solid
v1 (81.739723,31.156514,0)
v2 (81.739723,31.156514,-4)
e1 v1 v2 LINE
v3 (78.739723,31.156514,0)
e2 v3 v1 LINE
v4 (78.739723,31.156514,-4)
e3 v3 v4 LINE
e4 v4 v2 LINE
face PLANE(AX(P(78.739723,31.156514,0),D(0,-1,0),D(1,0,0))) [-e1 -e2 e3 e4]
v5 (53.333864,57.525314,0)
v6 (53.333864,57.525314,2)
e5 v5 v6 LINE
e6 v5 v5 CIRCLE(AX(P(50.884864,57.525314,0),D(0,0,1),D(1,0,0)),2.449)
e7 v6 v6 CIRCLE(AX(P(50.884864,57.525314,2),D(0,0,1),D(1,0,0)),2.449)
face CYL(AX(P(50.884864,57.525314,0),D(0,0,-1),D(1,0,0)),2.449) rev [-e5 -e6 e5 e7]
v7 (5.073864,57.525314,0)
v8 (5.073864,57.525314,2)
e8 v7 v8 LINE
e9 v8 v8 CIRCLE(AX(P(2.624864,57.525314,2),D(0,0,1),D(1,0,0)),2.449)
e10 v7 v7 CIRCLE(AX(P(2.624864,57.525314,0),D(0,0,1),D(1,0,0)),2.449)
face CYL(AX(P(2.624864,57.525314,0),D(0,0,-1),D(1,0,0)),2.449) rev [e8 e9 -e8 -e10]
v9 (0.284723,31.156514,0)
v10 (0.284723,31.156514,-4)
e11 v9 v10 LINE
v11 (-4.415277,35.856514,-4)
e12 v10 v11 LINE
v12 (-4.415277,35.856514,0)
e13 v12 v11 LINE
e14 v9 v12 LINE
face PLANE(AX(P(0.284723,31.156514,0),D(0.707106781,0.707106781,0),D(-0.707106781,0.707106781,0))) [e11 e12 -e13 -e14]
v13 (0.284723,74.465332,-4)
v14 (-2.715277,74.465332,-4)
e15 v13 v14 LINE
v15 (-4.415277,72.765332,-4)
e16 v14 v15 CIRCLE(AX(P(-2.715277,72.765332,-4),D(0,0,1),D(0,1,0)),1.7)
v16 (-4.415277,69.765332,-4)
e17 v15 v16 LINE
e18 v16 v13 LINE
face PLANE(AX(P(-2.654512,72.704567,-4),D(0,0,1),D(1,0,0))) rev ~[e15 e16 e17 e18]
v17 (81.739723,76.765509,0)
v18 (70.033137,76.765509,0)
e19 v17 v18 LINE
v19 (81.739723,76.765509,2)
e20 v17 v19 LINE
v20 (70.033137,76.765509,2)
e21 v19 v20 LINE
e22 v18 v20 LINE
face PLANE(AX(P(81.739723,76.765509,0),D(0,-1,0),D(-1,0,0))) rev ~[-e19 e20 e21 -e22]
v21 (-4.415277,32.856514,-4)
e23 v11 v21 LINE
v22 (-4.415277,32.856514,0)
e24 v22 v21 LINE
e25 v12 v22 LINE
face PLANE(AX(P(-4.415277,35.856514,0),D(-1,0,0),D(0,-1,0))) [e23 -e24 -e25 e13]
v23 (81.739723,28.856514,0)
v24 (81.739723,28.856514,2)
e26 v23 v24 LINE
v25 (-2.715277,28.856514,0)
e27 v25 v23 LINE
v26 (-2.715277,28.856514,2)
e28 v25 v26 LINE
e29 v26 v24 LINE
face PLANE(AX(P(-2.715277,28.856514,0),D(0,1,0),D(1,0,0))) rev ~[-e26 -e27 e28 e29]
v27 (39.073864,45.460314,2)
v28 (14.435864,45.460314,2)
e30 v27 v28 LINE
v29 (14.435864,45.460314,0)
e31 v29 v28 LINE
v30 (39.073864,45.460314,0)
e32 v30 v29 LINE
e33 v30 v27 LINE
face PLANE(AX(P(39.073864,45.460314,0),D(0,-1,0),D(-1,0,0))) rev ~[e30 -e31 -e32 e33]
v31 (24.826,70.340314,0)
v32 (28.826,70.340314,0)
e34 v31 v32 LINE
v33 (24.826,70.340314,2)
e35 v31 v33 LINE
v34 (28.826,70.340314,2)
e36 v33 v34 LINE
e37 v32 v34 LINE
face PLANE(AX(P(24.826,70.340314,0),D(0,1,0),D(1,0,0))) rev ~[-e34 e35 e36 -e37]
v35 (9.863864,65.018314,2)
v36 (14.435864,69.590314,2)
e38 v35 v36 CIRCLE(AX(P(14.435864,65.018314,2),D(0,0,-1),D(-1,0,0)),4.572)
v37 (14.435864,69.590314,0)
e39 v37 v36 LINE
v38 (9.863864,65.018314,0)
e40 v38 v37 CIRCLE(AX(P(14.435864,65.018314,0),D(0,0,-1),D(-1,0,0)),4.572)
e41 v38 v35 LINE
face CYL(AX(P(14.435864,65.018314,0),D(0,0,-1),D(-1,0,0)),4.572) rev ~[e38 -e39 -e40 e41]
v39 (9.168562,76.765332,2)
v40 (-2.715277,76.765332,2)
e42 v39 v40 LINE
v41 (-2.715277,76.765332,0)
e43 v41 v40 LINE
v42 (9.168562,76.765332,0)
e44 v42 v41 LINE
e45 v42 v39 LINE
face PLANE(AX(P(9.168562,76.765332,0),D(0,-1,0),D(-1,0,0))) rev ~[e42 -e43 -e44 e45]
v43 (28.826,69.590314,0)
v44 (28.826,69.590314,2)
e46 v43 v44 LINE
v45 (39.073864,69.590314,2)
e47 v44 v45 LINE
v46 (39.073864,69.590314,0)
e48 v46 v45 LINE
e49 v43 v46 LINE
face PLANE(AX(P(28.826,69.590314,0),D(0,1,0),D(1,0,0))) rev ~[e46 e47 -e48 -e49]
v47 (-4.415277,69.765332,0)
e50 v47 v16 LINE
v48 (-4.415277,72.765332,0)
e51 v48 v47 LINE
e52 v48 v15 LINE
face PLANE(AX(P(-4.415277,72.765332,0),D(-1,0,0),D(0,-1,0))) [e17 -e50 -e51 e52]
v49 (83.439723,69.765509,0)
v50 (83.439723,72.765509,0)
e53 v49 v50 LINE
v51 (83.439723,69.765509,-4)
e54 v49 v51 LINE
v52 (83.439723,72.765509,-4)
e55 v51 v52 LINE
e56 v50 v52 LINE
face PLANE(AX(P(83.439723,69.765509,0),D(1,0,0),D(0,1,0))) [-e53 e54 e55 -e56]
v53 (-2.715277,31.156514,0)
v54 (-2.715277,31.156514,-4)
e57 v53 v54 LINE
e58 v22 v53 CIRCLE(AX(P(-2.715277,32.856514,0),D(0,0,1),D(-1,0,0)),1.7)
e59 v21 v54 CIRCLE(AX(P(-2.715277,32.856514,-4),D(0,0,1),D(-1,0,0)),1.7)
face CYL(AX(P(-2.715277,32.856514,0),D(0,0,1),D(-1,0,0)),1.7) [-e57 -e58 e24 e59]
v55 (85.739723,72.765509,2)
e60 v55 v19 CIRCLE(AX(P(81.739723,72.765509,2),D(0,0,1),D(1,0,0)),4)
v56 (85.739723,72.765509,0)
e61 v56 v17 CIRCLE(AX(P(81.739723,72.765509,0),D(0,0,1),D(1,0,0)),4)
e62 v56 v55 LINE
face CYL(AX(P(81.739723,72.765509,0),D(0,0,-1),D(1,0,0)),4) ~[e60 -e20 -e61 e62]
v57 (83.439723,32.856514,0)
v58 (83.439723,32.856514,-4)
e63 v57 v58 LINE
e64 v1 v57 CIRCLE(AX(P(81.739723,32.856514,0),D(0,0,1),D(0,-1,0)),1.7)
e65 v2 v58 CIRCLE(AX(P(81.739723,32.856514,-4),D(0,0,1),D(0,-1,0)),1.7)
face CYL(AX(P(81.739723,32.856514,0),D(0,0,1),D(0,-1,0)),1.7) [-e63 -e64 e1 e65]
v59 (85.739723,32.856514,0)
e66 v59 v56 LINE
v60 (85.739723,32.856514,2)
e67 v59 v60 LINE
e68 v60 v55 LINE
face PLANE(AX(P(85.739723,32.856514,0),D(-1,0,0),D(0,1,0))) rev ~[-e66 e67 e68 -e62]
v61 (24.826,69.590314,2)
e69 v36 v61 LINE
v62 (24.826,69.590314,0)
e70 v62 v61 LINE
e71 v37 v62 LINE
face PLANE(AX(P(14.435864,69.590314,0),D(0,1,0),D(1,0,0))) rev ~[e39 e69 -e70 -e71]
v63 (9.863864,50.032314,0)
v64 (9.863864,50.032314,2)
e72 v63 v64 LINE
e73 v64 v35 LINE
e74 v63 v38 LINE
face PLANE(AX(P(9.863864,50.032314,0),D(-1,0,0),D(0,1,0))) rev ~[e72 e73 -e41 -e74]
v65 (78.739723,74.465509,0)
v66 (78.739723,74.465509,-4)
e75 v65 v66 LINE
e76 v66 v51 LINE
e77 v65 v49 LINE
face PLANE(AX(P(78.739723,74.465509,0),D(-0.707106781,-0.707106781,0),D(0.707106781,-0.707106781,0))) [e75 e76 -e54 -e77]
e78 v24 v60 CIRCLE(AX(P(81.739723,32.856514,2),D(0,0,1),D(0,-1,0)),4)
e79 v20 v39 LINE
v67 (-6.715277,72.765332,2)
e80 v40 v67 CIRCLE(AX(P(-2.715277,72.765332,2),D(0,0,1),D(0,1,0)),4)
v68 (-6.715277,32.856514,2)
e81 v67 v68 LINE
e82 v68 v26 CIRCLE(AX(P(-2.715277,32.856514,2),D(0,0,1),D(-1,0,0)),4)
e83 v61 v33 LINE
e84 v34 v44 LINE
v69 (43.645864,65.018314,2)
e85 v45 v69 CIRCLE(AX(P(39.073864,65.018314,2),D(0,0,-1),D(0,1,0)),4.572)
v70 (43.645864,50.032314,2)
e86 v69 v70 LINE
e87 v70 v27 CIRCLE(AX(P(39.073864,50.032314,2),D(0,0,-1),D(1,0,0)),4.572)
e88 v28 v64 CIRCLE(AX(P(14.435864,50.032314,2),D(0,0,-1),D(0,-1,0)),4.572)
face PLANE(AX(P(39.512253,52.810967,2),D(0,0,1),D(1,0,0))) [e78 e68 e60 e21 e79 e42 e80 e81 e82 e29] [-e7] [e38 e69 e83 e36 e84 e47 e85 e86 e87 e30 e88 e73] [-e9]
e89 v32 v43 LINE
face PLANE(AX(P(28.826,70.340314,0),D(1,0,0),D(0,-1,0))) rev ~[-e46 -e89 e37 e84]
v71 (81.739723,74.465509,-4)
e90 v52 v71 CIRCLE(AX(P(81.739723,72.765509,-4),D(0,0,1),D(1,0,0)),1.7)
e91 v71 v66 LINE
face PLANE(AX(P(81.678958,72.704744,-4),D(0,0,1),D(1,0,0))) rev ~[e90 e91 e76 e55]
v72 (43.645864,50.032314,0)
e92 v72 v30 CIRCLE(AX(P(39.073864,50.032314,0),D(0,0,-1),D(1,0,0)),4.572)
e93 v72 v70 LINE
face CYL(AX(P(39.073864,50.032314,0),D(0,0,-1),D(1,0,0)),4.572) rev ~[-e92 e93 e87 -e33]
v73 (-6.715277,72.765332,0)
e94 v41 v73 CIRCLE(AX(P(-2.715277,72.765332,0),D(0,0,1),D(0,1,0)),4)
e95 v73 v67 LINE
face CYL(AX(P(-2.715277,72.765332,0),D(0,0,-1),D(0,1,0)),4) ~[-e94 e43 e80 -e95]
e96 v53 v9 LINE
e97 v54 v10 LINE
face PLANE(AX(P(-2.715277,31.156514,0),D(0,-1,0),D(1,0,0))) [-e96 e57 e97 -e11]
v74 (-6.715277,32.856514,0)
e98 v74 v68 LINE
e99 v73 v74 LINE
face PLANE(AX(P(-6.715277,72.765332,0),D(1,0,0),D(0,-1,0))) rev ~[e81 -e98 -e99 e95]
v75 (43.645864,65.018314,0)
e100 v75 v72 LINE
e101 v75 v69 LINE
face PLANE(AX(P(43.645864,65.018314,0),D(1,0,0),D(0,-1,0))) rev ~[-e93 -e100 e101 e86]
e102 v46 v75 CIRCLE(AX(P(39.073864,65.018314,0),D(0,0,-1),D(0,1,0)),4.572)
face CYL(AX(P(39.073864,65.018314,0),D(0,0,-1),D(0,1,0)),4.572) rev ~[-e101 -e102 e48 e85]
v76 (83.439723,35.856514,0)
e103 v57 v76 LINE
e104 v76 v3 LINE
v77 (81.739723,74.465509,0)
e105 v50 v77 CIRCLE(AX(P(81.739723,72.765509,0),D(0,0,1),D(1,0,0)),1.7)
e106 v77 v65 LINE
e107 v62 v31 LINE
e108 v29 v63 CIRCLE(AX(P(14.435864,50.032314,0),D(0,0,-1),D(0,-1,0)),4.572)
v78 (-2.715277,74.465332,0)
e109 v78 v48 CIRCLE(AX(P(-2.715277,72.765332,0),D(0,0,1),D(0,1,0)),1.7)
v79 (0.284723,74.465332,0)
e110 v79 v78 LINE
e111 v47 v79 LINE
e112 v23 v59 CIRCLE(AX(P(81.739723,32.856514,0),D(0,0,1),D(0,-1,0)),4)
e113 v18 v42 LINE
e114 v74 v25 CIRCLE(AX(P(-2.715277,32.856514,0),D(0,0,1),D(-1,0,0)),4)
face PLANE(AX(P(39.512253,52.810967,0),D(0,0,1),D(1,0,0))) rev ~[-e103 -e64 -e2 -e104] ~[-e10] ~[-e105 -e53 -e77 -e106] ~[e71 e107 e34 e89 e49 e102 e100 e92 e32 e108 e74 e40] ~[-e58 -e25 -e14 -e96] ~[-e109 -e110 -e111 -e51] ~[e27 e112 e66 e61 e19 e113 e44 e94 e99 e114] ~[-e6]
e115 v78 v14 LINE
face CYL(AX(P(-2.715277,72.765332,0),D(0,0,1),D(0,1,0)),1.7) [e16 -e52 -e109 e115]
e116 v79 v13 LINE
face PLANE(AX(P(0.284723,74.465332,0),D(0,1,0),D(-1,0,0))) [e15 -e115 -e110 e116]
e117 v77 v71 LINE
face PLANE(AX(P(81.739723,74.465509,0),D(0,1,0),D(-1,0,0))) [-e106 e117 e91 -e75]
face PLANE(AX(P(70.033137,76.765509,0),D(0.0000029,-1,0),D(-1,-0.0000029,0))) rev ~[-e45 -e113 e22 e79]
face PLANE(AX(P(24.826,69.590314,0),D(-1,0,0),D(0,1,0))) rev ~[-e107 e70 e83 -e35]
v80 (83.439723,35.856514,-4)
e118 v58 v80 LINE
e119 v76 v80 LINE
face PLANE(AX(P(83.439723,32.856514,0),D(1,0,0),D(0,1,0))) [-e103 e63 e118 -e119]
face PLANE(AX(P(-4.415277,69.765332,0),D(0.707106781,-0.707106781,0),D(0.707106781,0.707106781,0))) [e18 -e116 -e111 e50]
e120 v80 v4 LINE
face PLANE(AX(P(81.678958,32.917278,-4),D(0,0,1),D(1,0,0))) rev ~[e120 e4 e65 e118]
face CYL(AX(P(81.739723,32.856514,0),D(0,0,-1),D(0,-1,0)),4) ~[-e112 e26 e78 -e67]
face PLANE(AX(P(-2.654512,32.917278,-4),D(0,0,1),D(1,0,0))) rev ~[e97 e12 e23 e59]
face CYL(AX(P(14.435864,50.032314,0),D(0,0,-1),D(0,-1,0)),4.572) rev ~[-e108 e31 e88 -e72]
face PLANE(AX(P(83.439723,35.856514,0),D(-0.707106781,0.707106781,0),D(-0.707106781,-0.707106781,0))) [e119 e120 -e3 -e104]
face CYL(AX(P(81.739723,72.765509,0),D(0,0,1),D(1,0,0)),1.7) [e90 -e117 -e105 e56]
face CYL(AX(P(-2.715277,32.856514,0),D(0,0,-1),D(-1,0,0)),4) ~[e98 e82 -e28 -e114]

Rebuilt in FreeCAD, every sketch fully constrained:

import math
import FreeCAD as App
import Part
import Sketcher

V = App.Vector

doc = App.newDocument("Part")
body = doc.addObject("PartDesign::Body", "Body")

# Sketch on XY plane
sketch1 = body.newObject("Sketcher::SketchObject", "Sketch")
sketch1.AttachmentSupport = (doc.getObject("XY_Plane"), [""])
sketch1.MapMode = "FlatFace"
sketch1.addGeometry([
    Part.LineSegment(V(9.2, 76.8, 0), V(-2.7, 76.8, 0)),  # 0
    Part.ArcOfCircle(Part.Circle(V(-2.7, 72.8, 0), V(0, 0, 1), 4), math.radians(90), math.radians(180)),  # 1
    Part.LineSegment(V(-6.7, 72.8, 0), V(-6.7, 32.9, 0)),  # 2
    Part.ArcOfCircle(Part.Circle(V(-2.7, 32.9, 0), V(0, 0, 1), 4), math.radians(180), math.radians(270)),  # 3
    Part.LineSegment(V(-2.7, 28.9, 0), V(81.7, 28.9, 0)),  # 4
    Part.ArcOfCircle(Part.Circle(V(81.7, 32.9, 0), V(0, 0, 1), 4), math.radians(-90), math.radians(0)),  # 5
    Part.LineSegment(V(85.7, 32.9, 0), V(85.7, 72.8, 0)),  # 6
    Part.ArcOfCircle(Part.Circle(V(81.7, 72.8, 0), V(0, 0, 1), 4), math.radians(0), math.radians(90)),  # 7
    Part.LineSegment(V(81.7, 76.8, 0), V(70, 76.8, 0)),  # 8
    Part.LineSegment(V(70, 76.8, 0), V(9.2, 76.8, 0)),  # 9
    Part.Circle(V(2.6, 57.5, 0), V(0, 0, 1), 2.4),  # 10
    Part.Circle(V(50.9, 57.5, 0), V(0, 0, 1), 2.4),  # 11
    Part.LineSegment(V(28.8, 69.6, 0), V(39.1, 69.6, 0)),  # 12
    Part.ArcOfCircle(Part.Circle(V(39.1, 65, 0), V(0, 0, 1), 4.6), math.radians(0), math.radians(90)),  # 13
    Part.LineSegment(V(43.6, 65, 0), V(43.6, 50, 0)),  # 14
    Part.ArcOfCircle(Part.Circle(V(39.1, 50, 0), V(0, 0, 1), 4.6), math.radians(-90), math.radians(0)),  # 15
    Part.LineSegment(V(39.1, 45.5, 0), V(14.4, 45.5, 0)),  # 16
    Part.ArcOfCircle(Part.Circle(V(14.4, 50, 0), V(0, 0, 1), 4.6), math.radians(-180), math.radians(-90)),  # 17
    Part.LineSegment(V(9.9, 50, 0), V(9.9, 65, 0)),  # 18
    Part.ArcOfCircle(Part.Circle(V(14.4, 65, 0), V(0, 0, 1), 4.6), math.radians(90), math.radians(180)),  # 19
    Part.LineSegment(V(14.4, 69.6, 0), V(24.8, 69.6, 0)),  # 20
    Part.LineSegment(V(24.8, 69.6, 0), V(24.8, 70.3, 0)),  # 21
    Part.LineSegment(V(24.8, 70.3, 0), V(28.8, 70.3, 0)),  # 22
    Part.LineSegment(V(28.8, 70.3, 0), V(28.8, 69.6, 0)),  # 23
], False)
sketch1.addConstraint([
    Sketcher.Constraint("Tangent", 0, 2, 1, 1),
    Sketcher.Constraint("Tangent", 1, 2, 2, 1),
    Sketcher.Constraint("Tangent", 2, 2, 3, 1),
    Sketcher.Constraint("Tangent", 3, 2, 4, 1),
    Sketcher.Constraint("Tangent", 4, 2, 5, 1),
    Sketcher.Constraint("Tangent", 5, 2, 6, 1),
    Sketcher.Constraint("Tangent", 6, 2, 7, 1),
    Sketcher.Constraint("Tangent", 7, 2, 8, 1),
    Sketcher.Constraint("Coincident", 8, 2, 9, 1),
    Sketcher.Constraint("Coincident", 9, 2, 0, 1),
    Sketcher.Constraint("Tangent", 12, 2, 13, 2),
    Sketcher.Constraint("Tangent", 13, 1, 14, 1),
    Sketcher.Constraint("Tangent", 14, 2, 15, 2),
    Sketcher.Constraint("Tangent", 15, 1, 16, 1),
    Sketcher.Constraint("Tangent", 16, 2, 17, 2),
    Sketcher.Constraint("Tangent", 17, 1, 18, 1),
    Sketcher.Constraint("Tangent", 18, 2, 19, 2),
    Sketcher.Constraint("Tangent", 19, 1, 20, 1),
    Sketcher.Constraint("Coincident", 20, 2, 21, 1),
    Sketcher.Constraint("Coincident", 21, 2, 22, 1),
    Sketcher.Constraint("Coincident", 22, 2, 23, 1),
    Sketcher.Constraint("Coincident", 23, 2, 12, 1),
    Sketcher.Constraint("Horizontal", 0),
    Sketcher.Constraint("Vertical", 2),
    Sketcher.Constraint("Horizontal", 4),
    Sketcher.Constraint("Vertical", 6),
    Sketcher.Constraint("Horizontal", 8),
    Sketcher.Constraint("Horizontal", 12),
    Sketcher.Constraint("Vertical", 14),
    Sketcher.Constraint("Horizontal", 16),
    Sketcher.Constraint("Vertical", 18),
    Sketcher.Constraint("Horizontal", 20),
    Sketcher.Constraint("Vertical", 21),
    Sketcher.Constraint("Horizontal", 22),
    Sketcher.Constraint("Vertical", 23),
    Sketcher.Constraint("Equal", 1, 3),
    Sketcher.Constraint("Equal", 3, 5),
    Sketcher.Constraint("Equal", 5, 7),
    Sketcher.Constraint("Equal", 10, 11),
    Sketcher.Constraint("Equal", 13, 15),
    Sketcher.Constraint("Equal", 15, 17),
    Sketcher.Constraint("Equal", 17, 19),
    Sketcher.Constraint("Horizontal", 10, 3, 11, 3),
    Sketcher.Constraint("Horizontal", 13, 3, 19, 3),
    Sketcher.Constraint("Radius", 1, 4.0),
    Sketcher.Constraint("DistanceX", 22, 1, 22, 2, 4.0),
    Sketcher.Constraint("Diameter", 10, 4.898),
    Sketcher.Constraint("Radius", 13, 4.572),
    Sketcher.Constraint("DistanceY", 21, 1, 21, 2, 0.75),
    Sketcher.Constraint("DistanceX", 4, 1, 4, 2, 84.455),
    Sketcher.Constraint("DistanceX", 16, 2, 16, 1, 24.638),
    Sketcher.Constraint("DistanceY", 14, 2, 14, 1, 14.986),
    Sketcher.Constraint("DistanceX", 10, 3, 11, 3, 48.26),
    Sketcher.Constraint("DistanceX", -1, 1, 20, 2, 24.826),
    Sketcher.Constraint("DistanceX", 13, 3, 11, 3, 11.811),
    Sketcher.Constraint("DistanceY", 11, 3, 13, 3, 7.493),
    Sketcher.Constraint("DistanceX", 0, 2, 0, 1, 11.883839),
    Sketcher.Constraint("DistanceY", 2, 2, 2, 1, 39.908819),
    Sketcher.Constraint("DistanceY", 3, 3, 10, 3, 24.6688),
    Sketcher.Constraint("DistanceX", 9, 2, 19, 3, 5.267302),
    Sketcher.Constraint("DistanceX", 8, 2, 8, 1, 11.706586),
    Sketcher.Constraint("DistanceX", 12, 1, 12, 2, 10.247863),
    Sketcher.Constraint("DistanceY", 6, 1, 6, 2, 39.908995),
    Sketcher.Constraint("DistanceY", -1, 1, 7, 3, 72.765509),
])
pad1 = body.newObject("PartDesign::Pad", "Pad")
pad1.Profile = sketch1
pad1.Length = 2

# Sketch on XY plane
sketch2 = body.newObject("Sketcher::SketchObject", "Sketch001")
sketch2.AttachmentSupport = (doc.getObject("XY_Plane"), [""])
sketch2.MapMode = "FlatFace"
sketch2.addGeometry([
    Part.LineSegment(V(83.4, 35.9, 0), V(83.4, 32.9, 0)),  # 0
    Part.ArcOfCircle(Part.Circle(V(81.7, 32.9, 0), V(0, 0, 1), 1.7), math.radians(-90), math.radians(0)),  # 1
    Part.LineSegment(V(81.7, 31.2, 0), V(78.7, 31.2, 0)),  # 2
    Part.LineSegment(V(78.7, 31.2, 0), V(83.4, 35.9, 0)),  # 3
    Part.LineSegment(V(78.7, 74.5, 0), V(81.7, 74.5, 0)),  # 4
    Part.ArcOfCircle(Part.Circle(V(81.7, 72.8, 0), V(0, 0, 1), 1.7), math.radians(0), math.radians(90)),  # 5
    Part.LineSegment(V(83.4, 72.8, 0), V(83.4, 69.8, 0)),  # 6
    Part.LineSegment(V(83.4, 69.8, 0), V(78.7, 74.5, 0)),  # 7
    Part.LineSegment(V(0.3, 31.2, 0), V(-2.7, 31.2, 0)),  # 8
    Part.ArcOfCircle(Part.Circle(V(-2.7, 32.9, 0), V(0, 0, 1), 1.7), math.radians(180), math.radians(270)),  # 9
    Part.LineSegment(V(-4.4, 32.9, 0), V(-4.4, 35.9, 0)),  # 10
    Part.LineSegment(V(-4.4, 35.9, 0), V(0.3, 31.2, 0)),  # 11
    Part.LineSegment(V(-4.4, 69.8, 0), V(-4.4, 72.8, 0)),  # 12
    Part.ArcOfCircle(Part.Circle(V(-2.7, 72.8, 0), V(0, 0, 1), 1.7), math.radians(90), math.radians(180)),  # 13
    Part.LineSegment(V(-2.7, 74.5, 0), V(0.3, 74.5, 0)),  # 14
    Part.LineSegment(V(0.3, 74.5, 0), V(-4.4, 69.8, 0)),  # 15
], False)
sketch2.addConstraint([
    Sketcher.Constraint("Tangent", 0, 2, 1, 2),
    Sketcher.Constraint("Tangent", 1, 1, 2, 1),
    Sketcher.Constraint("Coincident", 2, 2, 3, 1),
    Sketcher.Constraint("Coincident", 3, 2, 0, 1),
    Sketcher.Constraint("Tangent", 4, 2, 5, 2),
    Sketcher.Constraint("Tangent", 5, 1, 6, 1),
    Sketcher.Constraint("Coincident", 6, 2, 7, 1),
    Sketcher.Constraint("Coincident", 7, 2, 4, 1),
    Sketcher.Constraint("Tangent", 8, 2, 9, 2),
    Sketcher.Constraint("Tangent", 9, 1, 10, 1),
    Sketcher.Constraint("Coincident", 10, 2, 11, 1),
    Sketcher.Constraint("Coincident", 11, 2, 8, 1),
    Sketcher.Constraint("Tangent", 12, 2, 13, 2),
    Sketcher.Constraint("Tangent", 13, 1, 14, 1),
    Sketcher.Constraint("Coincident", 14, 2, 15, 1),
    Sketcher.Constraint("Coincident", 15, 2, 12, 1),
    Sketcher.Constraint("Vertical", 0),
    Sketcher.Constraint("Horizontal", 2),
    Sketcher.Constraint("Horizontal", 4),
    Sketcher.Constraint("Vertical", 6),
    Sketcher.Constraint("Horizontal", 8),
    Sketcher.Constraint("Vertical", 10),
    Sketcher.Constraint("Vertical", 12),
    Sketcher.Constraint("Horizontal", 14),
    Sketcher.Constraint("Equal", 1, 5),
    Sketcher.Constraint("Equal", 5, 9),
    Sketcher.Constraint("Equal", 9, 13),
    Sketcher.Constraint("Perpendicular", 3, 7),
    Sketcher.Constraint("Parallel", 7, 11),
    Sketcher.Constraint("Perpendicular", 11, 15),
    Sketcher.Constraint("Horizontal", 1, 3, 9, 3),
    Sketcher.Constraint("Horizontal", 3, 2, 10, 2),
    Sketcher.Constraint("Vertical", 1, 3, 5, 3),
    Sketcher.Constraint("Vertical", 9, 3, 13, 3),
    Sketcher.Constraint("Vertical", 2, 2, 7, 2),
    Sketcher.Constraint("Vertical", 11, 2, 14, 2),
    Sketcher.Constraint("Equal", 4, 8),
    Sketcher.Constraint("Radius", 1, 1.7),
    Sketcher.Constraint("DistanceX", 2, 2, 2, 1, 3.0),
    Sketcher.Constraint("DistanceX", 9, 3, 1, 3, 84.455),
    Sketcher.Constraint("DistanceY", -1, 1, 5, 3, 72.765509),
    Sketcher.Constraint("DistanceY", 9, 3, 13, 3, 39.908819),
    Sketcher.Constraint("DistanceX", -1, 1, 1, 3, 81.739723),
    Sketcher.Constraint("DistanceY", -1, 1, 1, 3, 32.856514),
])
pad2 = body.newObject("PartDesign::Pad", "Pad001")
pad2.Profile = sketch2
pad2.Length = 4
pad2.Reversed = True

doc.recompute()
